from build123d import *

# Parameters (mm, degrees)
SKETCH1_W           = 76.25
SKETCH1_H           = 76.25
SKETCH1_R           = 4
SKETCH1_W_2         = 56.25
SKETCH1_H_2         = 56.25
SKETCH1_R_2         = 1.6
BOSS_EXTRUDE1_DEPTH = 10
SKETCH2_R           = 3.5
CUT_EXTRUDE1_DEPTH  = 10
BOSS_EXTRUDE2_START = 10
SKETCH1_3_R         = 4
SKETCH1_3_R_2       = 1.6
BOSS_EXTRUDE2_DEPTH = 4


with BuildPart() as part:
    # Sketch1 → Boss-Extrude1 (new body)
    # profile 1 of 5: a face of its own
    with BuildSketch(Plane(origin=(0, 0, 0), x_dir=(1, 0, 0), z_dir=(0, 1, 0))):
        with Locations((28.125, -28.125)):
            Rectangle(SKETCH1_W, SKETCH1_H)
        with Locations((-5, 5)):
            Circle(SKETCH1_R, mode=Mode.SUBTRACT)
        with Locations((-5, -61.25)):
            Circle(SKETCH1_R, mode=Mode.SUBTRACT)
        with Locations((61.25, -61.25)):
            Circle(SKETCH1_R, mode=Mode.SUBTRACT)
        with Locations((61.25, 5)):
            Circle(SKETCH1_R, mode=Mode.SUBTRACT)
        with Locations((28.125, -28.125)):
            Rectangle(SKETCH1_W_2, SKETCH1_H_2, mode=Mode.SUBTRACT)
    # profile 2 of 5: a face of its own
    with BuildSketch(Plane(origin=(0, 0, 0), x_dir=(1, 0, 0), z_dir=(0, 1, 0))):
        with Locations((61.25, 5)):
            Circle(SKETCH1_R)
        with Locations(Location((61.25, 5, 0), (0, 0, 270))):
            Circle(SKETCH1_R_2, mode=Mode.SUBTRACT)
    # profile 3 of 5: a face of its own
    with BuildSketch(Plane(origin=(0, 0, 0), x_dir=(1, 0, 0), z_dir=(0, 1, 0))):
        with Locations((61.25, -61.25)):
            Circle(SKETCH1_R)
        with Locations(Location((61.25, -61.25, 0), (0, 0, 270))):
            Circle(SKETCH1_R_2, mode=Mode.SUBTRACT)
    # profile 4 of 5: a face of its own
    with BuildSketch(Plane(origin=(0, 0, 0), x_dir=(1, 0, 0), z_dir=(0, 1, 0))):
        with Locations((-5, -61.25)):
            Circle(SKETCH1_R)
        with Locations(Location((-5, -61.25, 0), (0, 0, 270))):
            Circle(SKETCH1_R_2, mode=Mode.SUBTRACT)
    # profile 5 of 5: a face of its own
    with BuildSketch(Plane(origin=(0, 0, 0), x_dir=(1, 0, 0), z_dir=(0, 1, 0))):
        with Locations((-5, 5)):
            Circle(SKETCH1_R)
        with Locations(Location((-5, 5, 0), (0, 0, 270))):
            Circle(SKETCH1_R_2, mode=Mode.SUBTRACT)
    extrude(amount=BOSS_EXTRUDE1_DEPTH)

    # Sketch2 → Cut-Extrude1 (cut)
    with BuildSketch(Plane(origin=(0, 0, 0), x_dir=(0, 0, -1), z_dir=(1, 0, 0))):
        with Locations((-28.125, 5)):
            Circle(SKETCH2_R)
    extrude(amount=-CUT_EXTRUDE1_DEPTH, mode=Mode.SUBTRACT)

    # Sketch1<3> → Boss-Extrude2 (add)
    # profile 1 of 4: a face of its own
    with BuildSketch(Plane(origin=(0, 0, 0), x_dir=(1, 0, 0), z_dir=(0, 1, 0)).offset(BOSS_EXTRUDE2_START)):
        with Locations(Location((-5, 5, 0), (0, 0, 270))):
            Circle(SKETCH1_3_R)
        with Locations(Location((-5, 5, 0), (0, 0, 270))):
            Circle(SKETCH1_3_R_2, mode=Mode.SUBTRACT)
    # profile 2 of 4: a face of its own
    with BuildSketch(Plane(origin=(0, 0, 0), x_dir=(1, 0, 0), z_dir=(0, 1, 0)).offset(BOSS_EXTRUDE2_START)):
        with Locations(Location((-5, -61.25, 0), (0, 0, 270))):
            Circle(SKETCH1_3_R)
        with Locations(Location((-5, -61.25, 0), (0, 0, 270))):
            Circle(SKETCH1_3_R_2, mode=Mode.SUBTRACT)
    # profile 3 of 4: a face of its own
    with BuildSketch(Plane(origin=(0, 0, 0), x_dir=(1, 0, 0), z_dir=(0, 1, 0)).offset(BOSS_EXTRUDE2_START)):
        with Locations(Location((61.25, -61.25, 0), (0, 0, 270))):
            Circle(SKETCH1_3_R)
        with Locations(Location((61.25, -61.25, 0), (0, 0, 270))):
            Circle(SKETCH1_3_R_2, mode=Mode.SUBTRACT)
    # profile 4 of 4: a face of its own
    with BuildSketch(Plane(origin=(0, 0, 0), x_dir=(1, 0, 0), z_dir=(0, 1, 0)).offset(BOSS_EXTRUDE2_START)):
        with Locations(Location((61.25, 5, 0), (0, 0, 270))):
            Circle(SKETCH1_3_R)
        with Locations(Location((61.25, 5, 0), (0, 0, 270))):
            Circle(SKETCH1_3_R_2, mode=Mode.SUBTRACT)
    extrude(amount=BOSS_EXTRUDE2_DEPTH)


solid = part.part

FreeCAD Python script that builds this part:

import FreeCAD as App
import Part
import Sketcher
from FreeCAD import Vector
Q = App.Units.Quantity


def add_polygon(sketch, points):
    """Adds a closed chain of lines whose ends are joined by coincident constraints."""
    first, n = sketch.GeometryCount, len(points)
    for a, b in zip(points, points[1:] + points[:1]):
        sketch.addGeometry(Part.LineSegment(App.Vector(*a, 0), App.Vector(*b, 0)), False)
    for i in range(n):
        sketch.addConstraint(Sketcher.Constraint("Coincident", first + i, 2, first + (i + 1) % n, 1))

doc = App.newDocument("Part")
params = doc.addObject("Spreadsheet::Sheet", "Params")
for row, (alias, value) in enumerate([
    ("sketch1_diameter", "3.2 mm"),
    ("sketch1_width", "76.25 mm"),
    ("pad1_length", "10 mm"),
    ("sketch2_diameter", "7 mm"),
    ("pocket1_length", "10 mm"),
    ("sketch3_diameter", "8 mm"),
    ("sketch3_diameter2", "3.2 mm"),
    ("pad2_length", "4 mm"),
], start=1):
    params.set(f"A{row}", alias)
    params.set(f"B{row}", "=" + value)
    params.setAlias(f"B{row}", alias)

body = doc.addObject("PartDesign::Body", "Body")

# Sketch on XZ plane
sketch1 = body.newObject("Sketcher::SketchObject", "Sketch")
sketch1.AttachmentSupport = (doc.getObject("XZ_Plane"), [""])
sketch1.MapMode = "FlatFace"
add_polygon(sketch1, [(-10, -10), (-10, 66.2), (66.2, 66.2), (66.2, -10)])  # lines 0-3
add_polygon(sketch1, [(56.2, 56.2), (0, 56.2), (0, 0), (56.2, 0)])  # lines 4-7
sketch1.addGeometry(Part.Circle(Vector(-5, 61.2, 0), Vector(0, 0, 1), 1.6), False)  # 8
sketch1.addGeometry(Part.Circle(Vector(61.2, 61.2, 0), Vector(0, 0, 1), 1.6), False)  # 9
sketch1.addGeometry(Part.Circle(Vector(-5, -5, 0), Vector(0, 0, 1), 1.6), False)  # 10
sketch1.addGeometry(Part.Circle(Vector(61.2, -5, 0), Vector(0, 0, 1), 1.6), False)  # 11
sketch1.addConstraint(Sketcher.Constraint("Vertical", 0))
sketch1.addConstraint(Sketcher.Constraint("Horizontal", 1))
sketch1.addConstraint(Sketcher.Constraint("Vertical", 2))
sketch1.addConstraint(Sketcher.Constraint("Horizontal", 3))
sketch1.addConstraint(Sketcher.Constraint("Horizontal", 4))
sketch1.addConstraint(Sketcher.Constraint("Vertical", 5))
sketch1.addConstraint(Sketcher.Constraint("Horizontal", 6))
sketch1.addConstraint(Sketcher.Constraint("Vertical", 7))
sketch1.addConstraint(Sketcher.Constraint("Coincident", 5, 2, -1, 1))
sketch1.addConstraint(Sketcher.Constraint("Equal", 8, 9))
sketch1.addConstraint(Sketcher.Constraint("Equal", 9, 10))
sketch1.addConstraint(Sketcher.Constraint("Equal", 10, 11))
sketch1.addConstraint(Sketcher.Constraint("Horizontal", 8, 3, 9, 3))
sketch1.addConstraint(Sketcher.Constraint("Horizontal", 10, 3, 11, 3))
sketch1.addConstraint(Sketcher.Constraint("Vertical", 8, 3, 10, 3))
sketch1.addConstraint(Sketcher.Constraint("Vertical", 9, 3, 11, 3))
sketch1.addConstraint(Sketcher.Constraint("Equal", 3, 0))
sketch1.addConstraint(Sketcher.Constraint("Equal", 6, 5))
sketch1.addConstraint(Sketcher.Constraint("Diameter", 8, Q("3.2 mm")))
sketch1.addConstraint(Sketcher.Constraint("DistanceX", 8, 3, -1, 1, Q("5 mm")))
sketch1.addConstraint(Sketcher.Constraint("DistanceY", 10, 3, -1, 1, Q("5 mm")))
sketch1.addConstraint(Sketcher.Constraint("DistanceX", 0, 2, -1, 1, Q("10 mm")))
sketch1.addConstraint(Sketcher.Constraint("DistanceY", 2, 2, -1, 1, Q("10 mm")))
sketch1.addConstraint(Sketcher.Constraint("DistanceY", 8, 3, 0, 2, Q("5 mm")))
sketch1.addConstraint(Sketcher.Constraint("DistanceX", 9, 3, 1, 2, Q("5 mm")))
sketch1.addConstraint(Sketcher.Constraint("DistanceY", 4, 2, 8, 3, Q("5 mm")))
sketch1.addConstraint(Sketcher.Constraint("DistanceX", 1, 1, 1, 2, Q("76.25 mm")))
sketch1.setExpression("Constraints[26]", "Params.sketch1_diameter")
sketch1.setExpression("Constraints[34]", "Params.sketch1_width")
pad1 = body.newObject("PartDesign::Pad", "Pad")
pad1.Profile = sketch1
pad1.setExpression("Length", "Params.pad1_length")
pad1.Reversed = True

# Sketch on YZ plane
sketch2 = body.newObject("Sketcher::SketchObject", "Sketch001")
sketch2.AttachmentSupport = (doc.getObject("YZ_Plane"), [""])
sketch2.MapMode = "FlatFace"
sketch2.addGeometry(Part.Circle(Vector(5, 28.1, 0), Vector(0, 0, 1), 3.5), False)
sketch2.addConstraint(Sketcher.Constraint("Diameter", 0, Q("7 mm")))
sketch2.addConstraint(Sketcher.Constraint("DistanceX", -1, 1, 0, 3, Q("5 mm")))
sketch2.addConstraint(Sketcher.Constraint("DistanceY", -1, 1, 0, 3, Q("28.125 mm")))
sketch2.setExpression("Constraints[0]", "Params.sketch2_diameter")
pocket1 = body.newObject("PartDesign::Pocket", "Pocket")
pocket1.Profile = sketch2
pocket1.setExpression("Length", "Params.pocket1_length")

# Sketch on XZ plane
sketch3 = body.newObject("Sketcher::SketchObject", "Sketch002")
sketch3.AttachmentSupport = (doc.getObject("XZ_Plane"), [""])
sketch3.MapMode = "FlatFace"
sketch3.AttachmentOffset = App.Placement(Vector(0, 0, -10), App.Rotation())
sketch3.addGeometry(Part.Circle(Vector(-5, -5, 0), Vector(0, 0, 1), 4), False)
sketch3.addGeometry(Part.Circle(Vector(-5, -5, 0), Vector(0, 0, 1), 1.6), False)
sketch3.addGeometry(Part.Circle(Vector(-5, 61.2, 0), Vector(0, 0, 1), 4), False)
sketch3.addGeometry(Part.Circle(Vector(-5, 61.2, 0), Vector(0, 0, 1), 1.6), False)
sketch3.addGeometry(Part.Circle(Vector(61.2, 61.2, 0), Vector(0, 0, 1), 4), False)
sketch3.addGeometry(Part.Circle(Vector(61.2, 61.2, 0), Vector(0, 0, 1), 1.6), False)
sketch3.addGeometry(Part.Circle(Vector(61.2, -5, 0), Vector(0, 0, 1), 4), False)
sketch3.addGeometry(Part.Circle(Vector(61.2, -5, 0), Vector(0, 0, 1), 1.6), False)
sketch3.addConstraint(Sketcher.Constraint("Coincident", 1, 3, 0, 3))
sketch3.addConstraint(Sketcher.Constraint("Coincident", 3, 3, 2, 3))
sketch3.addConstraint(Sketcher.Constraint("Coincident", 5, 3, 4, 3))
sketch3.addConstraint(Sketcher.Constraint("Coincident", 7, 3, 6, 3))
sketch3.addConstraint(Sketcher.Constraint("Equal", 0, 2))
sketch3.addConstraint(Sketcher.Constraint("Equal", 1, 3))
sketch3.addConstraint(Sketcher.Constraint("Equal", 2, 4))
sketch3.addConstraint(Sketcher.Constraint("Equal", 3, 5))
sketch3.addConstraint(Sketcher.Constraint("Equal", 4, 6))
sketch3.addConstraint(Sketcher.Constraint("Equal", 5, 7))
sketch3.addConstraint(Sketcher.Constraint("Horizontal", 3, 3, 4, 3))
sketch3.addConstraint(Sketcher.Constraint("Horizontal", 1, 3, 6, 3))
sketch3.addConstraint(Sketcher.Constraint("Vertical", 1, 3, 2, 3))
sketch3.addConstraint(Sketcher.Constraint("Vertical", 5, 3, 6, 3))
sketch3.addConstraint(Sketcher.Constraint("Diameter", 0, Q("8 mm")))
sketch3.addConstraint(Sketcher.Constraint("Diameter", 1, Q("3.2 mm")))
sketch3.addConstraint(Sketcher.Constraint("DistanceX", 0, 3, -1, 1, Q("5 mm")))
sketch3.addConstraint(Sketcher.Constraint("DistanceY", 0, 3, -1, 1, Q("5 mm")))
sketch3.addConstraint(Sketcher.Constraint("DistanceY", -1, 1, 2, 3, Q("61.25 mm")))
sketch3.addConstraint(Sketcher.Constraint("DistanceX", -1, 1, 4, 3, Q("61.25 mm")))
sketch3.setExpression("Constraints[14]", "Params.sketch3_diameter")
sketch3.setExpression("Constraints[15]", "Params.sketch3_diameter2")
pad2 = body.newObject("PartDesign::Pad", "Pad001")
pad2.Profile = sketch3
pad2.setExpression("Length", "Params.pad2_length")
pad2.Reversed = True

doc.recompute()
